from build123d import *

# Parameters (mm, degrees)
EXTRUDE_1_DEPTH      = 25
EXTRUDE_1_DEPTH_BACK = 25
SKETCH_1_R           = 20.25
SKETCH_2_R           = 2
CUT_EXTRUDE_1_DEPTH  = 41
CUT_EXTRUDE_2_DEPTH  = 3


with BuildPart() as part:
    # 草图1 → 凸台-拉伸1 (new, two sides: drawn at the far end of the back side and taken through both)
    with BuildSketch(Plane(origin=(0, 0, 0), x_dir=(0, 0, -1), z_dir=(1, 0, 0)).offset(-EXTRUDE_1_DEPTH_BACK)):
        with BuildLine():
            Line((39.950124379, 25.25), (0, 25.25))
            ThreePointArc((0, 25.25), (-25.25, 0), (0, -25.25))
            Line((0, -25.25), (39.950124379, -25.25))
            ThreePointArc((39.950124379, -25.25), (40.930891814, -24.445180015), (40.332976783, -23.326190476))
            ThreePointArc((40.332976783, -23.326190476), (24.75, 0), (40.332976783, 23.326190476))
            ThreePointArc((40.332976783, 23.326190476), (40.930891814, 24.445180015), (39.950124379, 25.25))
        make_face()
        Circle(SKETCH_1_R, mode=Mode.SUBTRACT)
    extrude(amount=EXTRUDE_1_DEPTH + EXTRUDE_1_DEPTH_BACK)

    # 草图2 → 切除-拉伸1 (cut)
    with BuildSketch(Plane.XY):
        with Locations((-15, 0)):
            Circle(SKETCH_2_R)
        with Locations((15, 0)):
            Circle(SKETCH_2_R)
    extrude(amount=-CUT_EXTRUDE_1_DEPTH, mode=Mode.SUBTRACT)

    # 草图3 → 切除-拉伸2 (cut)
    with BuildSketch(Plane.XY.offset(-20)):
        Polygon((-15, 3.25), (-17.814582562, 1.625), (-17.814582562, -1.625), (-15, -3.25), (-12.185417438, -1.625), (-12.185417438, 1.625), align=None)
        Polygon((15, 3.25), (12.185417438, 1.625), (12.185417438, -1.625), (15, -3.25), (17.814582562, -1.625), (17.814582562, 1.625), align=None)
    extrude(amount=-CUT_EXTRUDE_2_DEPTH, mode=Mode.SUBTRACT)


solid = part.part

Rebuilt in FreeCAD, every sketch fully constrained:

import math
import FreeCAD as App
import Part
import Sketcher

V = App.Vector
Q = App.Units.Quantity


def add_polygon(sketch, points):
    """Adds a closed chain of lines whose ends are joined by coincident constraints."""
    first, n = sketch.GeometryCount, len(points)
    for a, b in zip(points, points[1:] + points[:1]):
        sketch.addGeometry(Part.LineSegment(App.Vector(*a, 0), App.Vector(*b, 0)), False)
    for i in range(n):
        sketch.addConstraint(Sketcher.Constraint("Coincident", first + i, 2, first + (i + 1) % n, 1))

doc = App.newDocument("Part")
body = doc.addObject("PartDesign::Body", "Body")

# Sketch on YZ plane
sketch1 = doc.addObject("Sketcher::SketchObject", "Sketch")
body.addObject(sketch1)
sketch1.AttachmentSupport = (doc.YZ_Plane, [""])
sketch1.MapMode = "FlatFace"
sketch1.addGeometry([
    Part.LineSegment(V(25.2, -40, 0), V(25.2, 0, 0)),  # 0
    Part.ArcOfCircle(Part.Circle(V(0, 0, 0), V(0, 0, 1), 25.2), math.radians(0), math.radians(180)),  # 1
    Part.LineSegment(V(-25.2, 0, 0), V(-25.2, -40, 0)),  # 2
    Part.ArcOfCircle(Part.Circle(V(-24.2, -40, 0), V(0, 0, 1), 1), math.radians(180), math.radians(337)),  # 3
    Part.ArcOfCircle(Part.Circle(V(0, -50, 0), V(0, 0, 1), 25.2), math.radians(23), math.radians(157)),  # 4
    Part.ArcOfCircle(Part.Circle(V(24.2, -40, 0), V(0, 0, 1), 1), math.radians(-157), math.radians(0)),  # 5
    Part.Circle(V(0, 0, 0), V(0, 0, 1), 20.2),  # 6
], False)
sketch1.addConstraint([
    Sketcher.Constraint("Tangent", 0, 2, 1, 1),
    Sketcher.Constraint("Tangent", 1, 2, 2, 1),
    Sketcher.Constraint("Tangent", 2, 2, 3, 1),
    Sketcher.Constraint("Tangent", 3, 2, 4, 2),
    Sketcher.Constraint("Tangent", 4, 1, 5, 1),
    Sketcher.Constraint("Tangent", 5, 2, 0, 1),
    Sketcher.Constraint("Vertical", 0),
    Sketcher.Constraint("Vertical", 2),
    Sketcher.Constraint("Coincident", 1, 3, -1, 1),
    Sketcher.Constraint("Coincident", 6, 3, -1, 1),
    Sketcher.Constraint("Equal", 1, 4),
    Sketcher.Constraint("Equal", 3, 5),
    Sketcher.Constraint("PointOnObject", 4, 3, -2),
    Sketcher.Constraint("Radius", 3, Q("1 mm")),
    Sketcher.Constraint("Diameter", 6, Q("40.5 mm")),
    Sketcher.Constraint("Radius", 1, Q("25.25 mm")),
    Sketcher.Constraint("DistanceY", 4, 3, -1, 1, Q("50 mm")),
])
pad1 = doc.addObject("PartDesign::Pad", "Pad")
body.addObject(pad1)
pad1.Profile = sketch1
pad1.Type = "TwoLengths"
pad1.Length = 25
pad1.Length2 = 25

# Sketch on XY plane
sketch2 = doc.addObject("Sketcher::SketchObject", "Sketch001")
body.addObject(sketch2)
sketch2.AttachmentSupport = (doc.XY_Plane, [""])
sketch2.MapMode = "FlatFace"
sketch2.addGeometry([
    Part.Circle(V(-15, 0, 0), V(0, 0, 1), 2),
    Part.Circle(V(15, 0, 0), V(0, 0, 1), 2),
], False)
sketch2.addConstraint([
    Sketcher.Constraint("Equal", 0, 1),
    Sketcher.Constraint("Symmetric", 0, 3, 1, 3, -1, 1),
    Sketcher.Constraint("PointOnObject", 0, 3, -1),
    Sketcher.Constraint("Diameter", 0, Q("4 mm")),
    Sketcher.Constraint("DistanceX", 0, 3, -1, 1, Q("15 mm")),
])
pocket1 = doc.addObject("PartDesign::Pocket", "Pocket")
body.addObject(pocket1)
pocket1.Profile = sketch2
pocket1.Length = 41

# Sketch on XY plane
sketch3 = doc.addObject("Sketcher::SketchObject", "Sketch002")
body.addObject(sketch3)
sketch3.AttachmentSupport = (doc.XY_Plane, [""])
sketch3.MapMode = "FlatFace"
sketch3.AttachmentOffset = App.Placement(V(0, 0, -20), App.Rotation())
add_polygon(sketch3, [(-15, 3.2), (-17.8, 1.6), (-17.8, -1.6), (-15, -3.2), (-12.2, -1.6), (-12.2, 1.6)])  # lines 0-5
add_polygon(sketch3, [(15, 3.2), (12.2, 1.6), (12.2, -1.6), (15, -3.2), (17.8, -1.6), (17.8, 1.6)])  # lines 6-11
sketch3.addConstraint([
    Sketcher.Constraint("Vertical", 1),
    Sketcher.Constraint("Vertical", 4),
    Sketcher.Constraint("Vertical", 7),
    Sketcher.Constraint("Vertical", 10),
    Sketcher.Constraint("Symmetric", 3, 2, 6, 2, -1, 1),
    Sketcher.Constraint("Symmetric", 5, 2, 8, 2, -1, 1),
    Sketcher.Constraint("Symmetric", 0, 2, 9, 2, -1, 1),
    Sketcher.Constraint("Symmetric", 2, 2, 11, 2, -1, 1),
    Sketcher.Constraint("Symmetric", 2, 2, 8, 2, -2),
    Sketcher.Constraint("Parallel", 0, 3),
    Sketcher.Constraint("Parallel", 2, 5),
    Sketcher.Constraint("Parallel", 5, 8),
    Sketcher.Constraint("Parallel", 8, 11),
    Sketcher.Constraint("Horizontal", 1, 2, 3, 2),
    Sketcher.Constraint("Horizontal", 0, 2, 4, 2),
    Sketcher.Constraint("Angle", 0, Q("-150 deg")),
    Sketcher.Constraint("DistanceX", 2, 2, -1, 1, Q("15 mm")),
    Sketcher.Constraint("DistanceY", 1, 2, 1, 1, Q("3.25 mm")),
    Sketcher.Constraint("DistanceY", 2, 2, 5, 2, Q("6.5 mm")),
])
pocket2 = doc.addObject("PartDesign::Pocket", "Pocket001")
body.addObject(pocket2)
pocket2.Profile = sketch3
pocket2.Length = 3

doc.recompute()
